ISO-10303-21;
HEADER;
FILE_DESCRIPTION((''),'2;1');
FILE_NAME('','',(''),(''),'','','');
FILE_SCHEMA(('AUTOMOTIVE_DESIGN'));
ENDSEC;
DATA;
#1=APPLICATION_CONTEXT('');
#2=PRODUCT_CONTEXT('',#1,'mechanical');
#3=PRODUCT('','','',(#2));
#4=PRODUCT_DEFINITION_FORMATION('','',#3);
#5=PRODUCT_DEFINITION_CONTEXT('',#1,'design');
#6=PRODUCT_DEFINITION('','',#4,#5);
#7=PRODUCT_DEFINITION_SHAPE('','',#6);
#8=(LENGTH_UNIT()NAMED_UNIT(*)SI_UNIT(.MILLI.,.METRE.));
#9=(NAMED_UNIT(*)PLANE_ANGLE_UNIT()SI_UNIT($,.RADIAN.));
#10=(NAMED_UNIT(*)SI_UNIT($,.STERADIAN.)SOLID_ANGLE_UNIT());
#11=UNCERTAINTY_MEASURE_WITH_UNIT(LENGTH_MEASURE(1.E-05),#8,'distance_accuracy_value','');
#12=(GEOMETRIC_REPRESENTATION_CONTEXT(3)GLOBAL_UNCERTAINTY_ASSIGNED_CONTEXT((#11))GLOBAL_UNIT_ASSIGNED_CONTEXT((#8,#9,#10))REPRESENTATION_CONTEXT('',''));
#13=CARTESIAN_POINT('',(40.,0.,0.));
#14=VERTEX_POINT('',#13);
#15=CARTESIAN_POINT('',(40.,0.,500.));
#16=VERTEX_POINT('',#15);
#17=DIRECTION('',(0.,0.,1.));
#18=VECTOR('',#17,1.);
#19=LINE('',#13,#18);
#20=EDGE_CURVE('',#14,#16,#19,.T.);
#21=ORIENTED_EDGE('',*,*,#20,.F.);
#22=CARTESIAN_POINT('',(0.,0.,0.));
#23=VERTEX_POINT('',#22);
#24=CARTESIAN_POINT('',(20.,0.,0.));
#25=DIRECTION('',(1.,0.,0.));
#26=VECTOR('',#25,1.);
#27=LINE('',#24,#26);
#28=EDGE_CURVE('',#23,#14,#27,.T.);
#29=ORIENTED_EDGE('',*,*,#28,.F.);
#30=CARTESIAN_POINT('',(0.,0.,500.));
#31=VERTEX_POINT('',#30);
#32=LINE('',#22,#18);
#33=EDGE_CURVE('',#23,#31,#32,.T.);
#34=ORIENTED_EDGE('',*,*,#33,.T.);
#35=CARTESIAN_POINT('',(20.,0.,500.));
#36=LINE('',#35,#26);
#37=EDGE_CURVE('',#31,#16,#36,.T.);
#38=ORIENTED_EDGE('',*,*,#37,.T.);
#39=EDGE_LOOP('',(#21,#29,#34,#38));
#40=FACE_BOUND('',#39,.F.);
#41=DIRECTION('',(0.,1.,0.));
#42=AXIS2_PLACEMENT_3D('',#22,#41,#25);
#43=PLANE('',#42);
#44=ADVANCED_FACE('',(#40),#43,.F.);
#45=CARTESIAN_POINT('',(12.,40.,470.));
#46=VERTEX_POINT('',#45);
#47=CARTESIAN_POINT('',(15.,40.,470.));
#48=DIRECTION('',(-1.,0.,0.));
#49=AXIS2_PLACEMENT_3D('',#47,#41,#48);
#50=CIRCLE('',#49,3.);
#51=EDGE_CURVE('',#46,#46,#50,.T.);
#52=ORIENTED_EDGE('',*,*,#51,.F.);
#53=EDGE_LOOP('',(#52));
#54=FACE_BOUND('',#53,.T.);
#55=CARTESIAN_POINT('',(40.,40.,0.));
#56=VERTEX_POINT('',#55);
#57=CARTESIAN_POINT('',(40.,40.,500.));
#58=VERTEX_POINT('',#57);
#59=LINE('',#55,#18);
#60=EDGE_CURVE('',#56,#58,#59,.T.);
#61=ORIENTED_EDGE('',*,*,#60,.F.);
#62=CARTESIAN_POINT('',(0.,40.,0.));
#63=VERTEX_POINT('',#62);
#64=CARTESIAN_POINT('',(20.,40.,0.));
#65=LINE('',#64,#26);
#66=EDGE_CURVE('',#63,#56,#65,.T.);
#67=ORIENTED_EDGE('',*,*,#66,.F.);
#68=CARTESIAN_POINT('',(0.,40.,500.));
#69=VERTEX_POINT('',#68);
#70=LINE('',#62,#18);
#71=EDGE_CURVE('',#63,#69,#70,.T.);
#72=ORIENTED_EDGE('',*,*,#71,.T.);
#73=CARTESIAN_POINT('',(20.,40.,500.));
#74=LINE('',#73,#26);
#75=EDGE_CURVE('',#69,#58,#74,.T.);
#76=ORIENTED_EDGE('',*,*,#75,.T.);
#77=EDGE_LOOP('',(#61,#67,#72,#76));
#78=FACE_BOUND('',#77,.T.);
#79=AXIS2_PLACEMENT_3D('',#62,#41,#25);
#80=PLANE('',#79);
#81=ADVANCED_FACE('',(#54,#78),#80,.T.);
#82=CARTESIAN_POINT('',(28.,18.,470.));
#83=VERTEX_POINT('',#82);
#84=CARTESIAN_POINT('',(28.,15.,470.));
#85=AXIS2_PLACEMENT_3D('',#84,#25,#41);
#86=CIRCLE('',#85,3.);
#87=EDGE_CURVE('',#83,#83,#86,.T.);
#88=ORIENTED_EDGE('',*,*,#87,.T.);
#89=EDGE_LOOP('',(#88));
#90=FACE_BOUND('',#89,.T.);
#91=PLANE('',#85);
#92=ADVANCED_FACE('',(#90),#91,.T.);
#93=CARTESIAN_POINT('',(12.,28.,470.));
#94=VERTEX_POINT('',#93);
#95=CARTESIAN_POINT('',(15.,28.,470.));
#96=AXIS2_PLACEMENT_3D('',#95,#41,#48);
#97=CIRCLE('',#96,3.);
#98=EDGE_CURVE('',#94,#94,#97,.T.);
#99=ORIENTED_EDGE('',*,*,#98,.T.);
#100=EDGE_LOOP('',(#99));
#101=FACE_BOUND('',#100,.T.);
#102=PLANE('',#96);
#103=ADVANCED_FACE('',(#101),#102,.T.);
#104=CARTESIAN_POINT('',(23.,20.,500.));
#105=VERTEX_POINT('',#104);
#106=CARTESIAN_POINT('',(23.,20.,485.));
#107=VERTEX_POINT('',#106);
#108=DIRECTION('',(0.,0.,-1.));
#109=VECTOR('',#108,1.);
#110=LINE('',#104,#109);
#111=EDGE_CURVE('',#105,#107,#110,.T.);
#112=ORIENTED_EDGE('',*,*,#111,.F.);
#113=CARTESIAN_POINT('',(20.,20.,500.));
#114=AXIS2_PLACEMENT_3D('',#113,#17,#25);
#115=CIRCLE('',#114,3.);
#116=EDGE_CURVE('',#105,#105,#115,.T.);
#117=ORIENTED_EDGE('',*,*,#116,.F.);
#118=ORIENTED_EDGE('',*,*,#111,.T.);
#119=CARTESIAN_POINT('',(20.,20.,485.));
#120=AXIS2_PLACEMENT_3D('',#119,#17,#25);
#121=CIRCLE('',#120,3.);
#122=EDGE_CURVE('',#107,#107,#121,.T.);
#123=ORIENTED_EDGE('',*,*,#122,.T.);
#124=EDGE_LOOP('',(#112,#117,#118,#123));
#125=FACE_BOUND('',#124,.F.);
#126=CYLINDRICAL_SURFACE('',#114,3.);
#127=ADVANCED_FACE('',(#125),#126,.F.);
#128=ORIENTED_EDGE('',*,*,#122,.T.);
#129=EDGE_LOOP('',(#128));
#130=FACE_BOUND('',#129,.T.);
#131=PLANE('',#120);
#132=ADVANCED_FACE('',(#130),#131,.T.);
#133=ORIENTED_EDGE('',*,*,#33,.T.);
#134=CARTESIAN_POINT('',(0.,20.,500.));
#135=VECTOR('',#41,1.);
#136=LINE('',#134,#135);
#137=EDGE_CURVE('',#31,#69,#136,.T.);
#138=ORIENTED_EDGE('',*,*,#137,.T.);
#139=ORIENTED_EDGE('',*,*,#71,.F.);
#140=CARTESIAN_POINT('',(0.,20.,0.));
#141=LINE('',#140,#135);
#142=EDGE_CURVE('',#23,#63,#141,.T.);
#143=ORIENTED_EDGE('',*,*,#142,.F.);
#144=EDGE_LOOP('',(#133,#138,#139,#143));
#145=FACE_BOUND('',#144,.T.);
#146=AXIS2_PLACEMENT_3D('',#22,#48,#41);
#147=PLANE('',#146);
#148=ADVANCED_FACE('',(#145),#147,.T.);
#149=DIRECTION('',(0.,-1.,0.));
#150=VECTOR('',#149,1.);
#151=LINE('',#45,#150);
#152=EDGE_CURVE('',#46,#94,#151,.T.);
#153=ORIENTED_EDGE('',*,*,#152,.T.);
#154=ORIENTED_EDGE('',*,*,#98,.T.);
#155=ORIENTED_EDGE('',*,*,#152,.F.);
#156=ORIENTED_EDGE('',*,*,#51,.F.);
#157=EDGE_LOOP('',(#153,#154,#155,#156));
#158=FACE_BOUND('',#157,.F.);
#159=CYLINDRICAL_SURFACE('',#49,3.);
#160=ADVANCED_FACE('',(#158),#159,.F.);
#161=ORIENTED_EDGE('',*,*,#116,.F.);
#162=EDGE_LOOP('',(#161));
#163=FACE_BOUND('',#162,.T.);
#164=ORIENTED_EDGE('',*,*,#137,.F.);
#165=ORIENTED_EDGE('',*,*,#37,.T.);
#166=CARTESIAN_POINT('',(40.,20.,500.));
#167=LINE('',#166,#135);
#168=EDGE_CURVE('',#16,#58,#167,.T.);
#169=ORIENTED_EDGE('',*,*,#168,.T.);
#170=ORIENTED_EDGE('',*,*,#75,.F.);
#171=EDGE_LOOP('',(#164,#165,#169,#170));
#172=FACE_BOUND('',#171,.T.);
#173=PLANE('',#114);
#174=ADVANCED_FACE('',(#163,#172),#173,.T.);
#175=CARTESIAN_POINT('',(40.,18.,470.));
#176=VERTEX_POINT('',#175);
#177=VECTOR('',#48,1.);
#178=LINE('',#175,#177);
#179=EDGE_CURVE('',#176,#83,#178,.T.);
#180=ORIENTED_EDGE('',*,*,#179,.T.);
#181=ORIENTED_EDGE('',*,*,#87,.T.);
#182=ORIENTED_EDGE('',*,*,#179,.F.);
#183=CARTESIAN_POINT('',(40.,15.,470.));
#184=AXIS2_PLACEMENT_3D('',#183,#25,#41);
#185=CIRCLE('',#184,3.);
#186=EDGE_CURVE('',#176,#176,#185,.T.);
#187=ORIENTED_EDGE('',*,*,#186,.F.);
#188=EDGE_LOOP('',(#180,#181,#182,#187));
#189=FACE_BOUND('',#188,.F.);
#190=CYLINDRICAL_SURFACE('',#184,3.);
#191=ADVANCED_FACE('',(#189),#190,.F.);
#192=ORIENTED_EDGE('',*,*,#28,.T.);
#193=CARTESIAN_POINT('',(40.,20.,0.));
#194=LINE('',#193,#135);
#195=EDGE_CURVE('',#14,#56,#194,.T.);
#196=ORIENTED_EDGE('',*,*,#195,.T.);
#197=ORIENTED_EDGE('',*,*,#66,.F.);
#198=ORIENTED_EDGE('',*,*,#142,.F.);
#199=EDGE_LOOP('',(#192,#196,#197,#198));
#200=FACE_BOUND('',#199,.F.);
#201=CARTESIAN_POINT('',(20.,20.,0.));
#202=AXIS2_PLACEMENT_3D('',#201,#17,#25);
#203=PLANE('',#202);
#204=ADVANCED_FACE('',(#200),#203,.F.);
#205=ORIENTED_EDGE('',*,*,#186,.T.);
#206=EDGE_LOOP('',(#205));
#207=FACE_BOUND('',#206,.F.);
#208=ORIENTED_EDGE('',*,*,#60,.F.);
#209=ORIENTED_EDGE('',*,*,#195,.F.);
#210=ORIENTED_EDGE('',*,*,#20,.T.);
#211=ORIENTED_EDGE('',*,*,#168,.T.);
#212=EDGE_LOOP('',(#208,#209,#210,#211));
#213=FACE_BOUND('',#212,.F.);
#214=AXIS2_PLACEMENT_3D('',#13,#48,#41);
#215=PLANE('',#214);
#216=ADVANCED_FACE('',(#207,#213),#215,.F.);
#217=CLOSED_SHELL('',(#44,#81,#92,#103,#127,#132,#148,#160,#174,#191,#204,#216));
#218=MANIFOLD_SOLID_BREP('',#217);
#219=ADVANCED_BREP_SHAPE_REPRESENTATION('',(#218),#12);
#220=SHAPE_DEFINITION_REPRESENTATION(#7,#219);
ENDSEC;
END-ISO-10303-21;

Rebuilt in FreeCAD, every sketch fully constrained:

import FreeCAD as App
import Part
import Sketcher

V = App.Vector
Q = App.Units.Quantity

doc = App.newDocument("Part")
params = doc.addObject("Spreadsheet::Sheet", "Params")
for row, (alias, value) in enumerate([
    ("sketch1_width", "40 mm"),
    ("pad1_length", "500 mm"),
    ("sketch2_diameter", "6 mm"),
    ("pocket1_length", "12 mm"),
    ("sketch3_diameter", "6 mm"),
    ("pocket2_length", "12 mm"),
    ("sketch4_diameter", "6 mm"),
    ("pocket3_length", "15 mm"),
], start=1):
    params.set(f"A{row}", alias)
    params.set(f"B{row}", "=" + value)
    params.setAlias(f"B{row}", alias)

body = doc.addObject("PartDesign::Body", "Body")

sketch1 = doc.addObject("Sketcher::SketchObject", "Sketch")
body.addObject(sketch1)
sketch1.AttachmentSupport = (doc.XY_Plane, [""])
sketch1.MapMode = "FlatFace"
sketch1.addGeometry(Part.LineSegment(V(0, 40, 0), V(0, 0, 0)), False)
sketch1.addGeometry(Part.LineSegment(V(0, 0, 0), V(40, 0, 0)), False)
sketch1.addGeometry(Part.LineSegment(V(40, 0, 0), V(40, 40, 0)), False)
sketch1.addGeometry(Part.LineSegment(V(40, 40, 0), V(0, 40, 0)), False)
sketch1.addConstraint(Sketcher.Constraint("Coincident", 0, 2, 1, 1))
sketch1.addConstraint(Sketcher.Constraint("Coincident", 1, 2, 2, 1))
sketch1.addConstraint(Sketcher.Constraint("Coincident", 2, 2, 3, 1))
sketch1.addConstraint(Sketcher.Constraint("Coincident", 3, 2, 0, 1))
sketch1.addConstraint(Sketcher.Constraint("Vertical", 0))
sketch1.addConstraint(Sketcher.Constraint("Horizontal", 1))
sketch1.addConstraint(Sketcher.Constraint("Vertical", 2))
sketch1.addConstraint(Sketcher.Constraint("Horizontal", 3))
sketch1.addConstraint(Sketcher.Constraint("Coincident", 0, 2, -1, 1))
sketch1.addConstraint(Sketcher.Constraint("Equal", 3, 0))
sketch1.addConstraint(Sketcher.Constraint("DistanceX", 1, 1, 1, 2, Q("40 mm")))
sketch1.setExpression("Constraints[10]", "Params.sketch1_width")
pad1 = doc.addObject("PartDesign::Pad", "Pad")
body.addObject(pad1)
pad1.Profile = sketch1
pad1.setExpression("Length", "Params.pad1_length")

sketch2 = doc.addObject("Sketcher::SketchObject", "Sketch001")
body.addObject(sketch2)
sketch2.AttachmentSupport = (doc.YZ_Plane, [""])
sketch2.MapMode = "FlatFace"
sketch2.AttachmentOffset = App.Placement(V(0, 0, 40), App.Rotation())
sketch2.addGeometry(Part.Circle(V(15, 470, 0), V(0, 0, 1), 3), False)
sketch2.addConstraint(Sketcher.Constraint("Diameter", 0, Q("6 mm")))
sketch2.addConstraint(Sketcher.Constraint("DistanceX", -1, 1, 0, 3, Q("15 mm")))
sketch2.addConstraint(Sketcher.Constraint("DistanceY", -1, 1, 0, 3, Q("470 mm")))
sketch2.setExpression("Constraints[0]", "Params.sketch2_diameter")
pocket1 = doc.addObject("PartDesign::Pocket", "Pocket")
body.addObject(pocket1)
pocket1.Profile = sketch2
pocket1.setExpression("Length", "Params.pocket1_length")

sketch3 = doc.addObject("Sketcher::SketchObject", "Sketch002")
body.addObject(sketch3)
sketch3.AttachmentSupport = (doc.XZ_Plane, [""])
sketch3.MapMode = "FlatFace"
sketch3.AttachmentOffset = App.Placement(V(0, 0, -40), App.Rotation())
sketch3.addGeometry(Part.Circle(V(15, 470, 0), V(0, 0, 1), 3), False)
sketch3.addConstraint(Sketcher.Constraint("Diameter", 0, Q("6 mm")))
sketch3.addConstraint(Sketcher.Constraint("DistanceX", -1, 1, 0, 3, Q("15 mm")))
sketch3.addConstraint(Sketcher.Constraint("DistanceY", -1, 1, 0, 3, Q("470 mm")))
sketch3.setExpression("Constraints[0]", "Params.sketch3_diameter")
pocket2 = doc.addObject("PartDesign::Pocket", "Pocket001")
body.addObject(pocket2)
pocket2.Profile = sketch3
pocket2.setExpression("Length", "Params.pocket2_length")
pocket2.Reversed = True

sketch4 = doc.addObject("Sketcher::SketchObject", "Sketch003")
body.addObject(sketch4)
sketch4.AttachmentSupport = (doc.XY_Plane, [""])
sketch4.MapMode = "FlatFace"
sketch4.AttachmentOffset = App.Placement(V(0, 0, 500), App.Rotation())
sketch4.addGeometry(Part.Circle(V(20, 20, 0), V(0, 0, 1), 3), False)
sketch4.addConstraint(Sketcher.Constraint("Diameter", 0, Q("6 mm")))
sketch4.addConstraint(Sketcher.Constraint("DistanceX", -1, 1, 0, 3, Q("20 mm")))
sketch4.addConstraint(Sketcher.Constraint("DistanceY", -1, 1, 0, 3, Q("20 mm")))
sketch4.setExpression("Constraints[0]", "Params.sketch4_diameter")
pocket3 = doc.addObject("PartDesign::Pocket", "Pocket002")
body.addObject(pocket3)
pocket3.Profile = sketch4
pocket3.setExpression("Length", "Params.pocket3_length")

doc.recompute()
